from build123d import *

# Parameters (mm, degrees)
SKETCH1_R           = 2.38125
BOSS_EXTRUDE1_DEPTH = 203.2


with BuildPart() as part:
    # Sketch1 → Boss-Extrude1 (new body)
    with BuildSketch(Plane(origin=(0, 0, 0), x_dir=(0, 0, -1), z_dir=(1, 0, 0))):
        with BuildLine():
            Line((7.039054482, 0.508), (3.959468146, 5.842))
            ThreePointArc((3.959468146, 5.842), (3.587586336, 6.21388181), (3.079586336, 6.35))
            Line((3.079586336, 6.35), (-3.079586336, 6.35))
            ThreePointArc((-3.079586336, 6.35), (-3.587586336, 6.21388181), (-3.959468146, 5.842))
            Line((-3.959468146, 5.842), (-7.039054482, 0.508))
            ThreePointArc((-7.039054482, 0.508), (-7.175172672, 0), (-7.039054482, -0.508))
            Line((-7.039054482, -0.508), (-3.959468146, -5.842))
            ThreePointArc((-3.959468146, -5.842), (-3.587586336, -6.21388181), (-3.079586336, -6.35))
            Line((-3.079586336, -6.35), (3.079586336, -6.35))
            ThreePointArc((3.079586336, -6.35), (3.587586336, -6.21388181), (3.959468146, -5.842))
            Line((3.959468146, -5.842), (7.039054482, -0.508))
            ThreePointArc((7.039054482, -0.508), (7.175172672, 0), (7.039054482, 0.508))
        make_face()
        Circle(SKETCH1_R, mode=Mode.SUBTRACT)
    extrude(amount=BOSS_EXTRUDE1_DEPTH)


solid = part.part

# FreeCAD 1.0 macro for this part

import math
import FreeCAD as App
import Part
import Sketcher
from FreeCAD import Vector
Q = App.Units.Quantity

doc = App.newDocument("Part")
params = doc.addObject("Spreadsheet::Sheet", "Params")
for row, (alias, value) in enumerate([
    ("sketch1_radius", "0.04 in"),
    ("sketch1_diameter", "0.1875 in"),
    ("pad1_length", "8 in"),
], start=1):
    params.set(f"A{row}", alias)
    params.set(f"B{row}", "=" + value)
    params.setAlias(f"B{row}", alias)

body = doc.addObject("PartDesign::Body", "Body")

# Sketch on YZ plane
sketch1 = body.newObject("Sketcher::SketchObject", "Sketch")
sketch1.AttachmentSupport = (doc.getObject("YZ_Plane"), [""])
sketch1.MapMode = "FlatFace"
sketch1.addGeometry([
    Part.LineSegment(Vector(0.5, -7, 0), Vector(5.8, -4, 0)),  # 0
    Part.ArcOfCircle(Part.Circle(Vector(5.3, -3.1, 0), Vector(0, 0, 1), 1), math.radians(-60), math.radians(0)),  # 1
    Part.LineSegment(Vector(6.3, -3.1, 0), Vector(6.3, 3.1, 0)),  # 2
    Part.ArcOfCircle(Part.Circle(Vector(5.3, 3.1, 0), Vector(0, 0, 1), 1), math.radians(0), math.radians(60)),  # 3
    Part.LineSegment(Vector(5.8, 4, 0), Vector(0.5, 7, 0)),  # 4
    Part.ArcOfCircle(Part.Circle(Vector(0, 6.2, 0), Vector(0, 0, 1), 1), math.radians(60), math.radians(120)),  # 5
    Part.LineSegment(Vector(-0.5, 7, 0), Vector(-5.8, 4, 0)),  # 6
    Part.ArcOfCircle(Part.Circle(Vector(-5.3, 3.1, 0), Vector(0, 0, 1), 1), math.radians(120), math.radians(180)),  # 7
    Part.LineSegment(Vector(-6.3, 3.1, 0), Vector(-6.3, -3.1, 0)),  # 8
    Part.ArcOfCircle(Part.Circle(Vector(-5.3, -3.1, 0), Vector(0, 0, 1), 1), math.radians(-180), math.radians(-120)),  # 9
    Part.LineSegment(Vector(-5.8, -4, 0), Vector(-0.5, -7, 0)),  # 10
    Part.ArcOfCircle(Part.Circle(Vector(0, -6.2, 0), Vector(0, 0, 1), 1), math.radians(-120), math.radians(-60)),  # 11
    Part.Circle(Vector(0, 0, 0), Vector(0, 0, 1), 2.4),  # 12
], False)
sketch1.addConstraint([
    Sketcher.Constraint("Tangent", 0, 2, 1, 1),
    Sketcher.Constraint("Tangent", 1, 2, 2, 1),
    Sketcher.Constraint("Tangent", 2, 2, 3, 1),
    Sketcher.Constraint("Tangent", 3, 2, 4, 1),
    Sketcher.Constraint("Tangent", 4, 2, 5, 1),
    Sketcher.Constraint("Tangent", 5, 2, 6, 1),
    Sketcher.Constraint("Tangent", 6, 2, 7, 1),
    Sketcher.Constraint("Tangent", 7, 2, 8, 1),
    Sketcher.Constraint("Tangent", 8, 2, 9, 1),
    Sketcher.Constraint("Tangent", 9, 2, 10, 1),
    Sketcher.Constraint("Tangent", 10, 2, 11, 1),
    Sketcher.Constraint("Tangent", 11, 2, 0, 1),
    Sketcher.Constraint("Vertical", 2),
    Sketcher.Constraint("Vertical", 8),
    Sketcher.Constraint("Coincident", 12, 3, -1, 1),
    Sketcher.Constraint("Equal", 1, 3),
    Sketcher.Constraint("Equal", 3, 5),
    Sketcher.Constraint("Equal", 5, 7),
    Sketcher.Constraint("Equal", 7, 9),
    Sketcher.Constraint("Equal", 9, 11),
    Sketcher.Constraint("Symmetric", 1, 3, 7, 3, -1, 1),
    Sketcher.Constraint("Symmetric", 5, 3, 11, 3, -1, 1),
    Sketcher.Constraint("Symmetric", 4, 2, 5, 2, -2),
    Sketcher.Constraint("Parallel", 4, 10),
    Sketcher.Constraint("Radius", 1, Q("0.04 in")),
    Sketcher.Constraint("Diameter", 12, Q("0.1875 in")),
    Sketcher.Constraint("Angle", 0, Q("30 deg")),
    Sketcher.Constraint("DistanceX", -1, 1, 1, 3, Q("0.21 in")),
    Sketcher.Constraint("DistanceY", 2, 1, 2, 2, Q("6.159173 mm")),
])
sketch1.setExpression("Constraints[24]", "Params.sketch1_radius")
sketch1.setExpression("Constraints[25]", "Params.sketch1_diameter")
pad1 = body.newObject("PartDesign::Pad", "Pad")
pad1.Profile = sketch1
pad1.setExpression("Length", "Params.pad1_length")

doc.recompute()
